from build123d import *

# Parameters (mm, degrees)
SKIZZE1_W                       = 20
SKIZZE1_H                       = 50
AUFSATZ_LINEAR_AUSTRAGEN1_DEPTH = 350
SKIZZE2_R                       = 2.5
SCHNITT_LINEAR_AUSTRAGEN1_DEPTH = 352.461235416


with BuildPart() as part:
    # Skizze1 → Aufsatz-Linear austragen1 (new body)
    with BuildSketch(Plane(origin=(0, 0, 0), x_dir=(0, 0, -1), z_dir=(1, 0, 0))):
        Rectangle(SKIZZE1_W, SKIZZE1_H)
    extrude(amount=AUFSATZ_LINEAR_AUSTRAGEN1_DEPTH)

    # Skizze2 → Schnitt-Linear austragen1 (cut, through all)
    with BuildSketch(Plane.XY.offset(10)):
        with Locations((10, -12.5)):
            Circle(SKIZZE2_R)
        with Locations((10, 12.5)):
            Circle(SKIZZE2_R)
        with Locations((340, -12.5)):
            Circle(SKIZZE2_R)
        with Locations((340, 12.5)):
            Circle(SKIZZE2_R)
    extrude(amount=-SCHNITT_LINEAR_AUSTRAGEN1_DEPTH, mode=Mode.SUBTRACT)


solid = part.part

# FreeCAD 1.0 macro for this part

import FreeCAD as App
import Part
import Sketcher
Q = App.Units.Quantity

doc = App.newDocument("Part")
params = doc.addObject("Spreadsheet::Sheet", "Params")
for row, (alias, value) in enumerate([
    ("sketch1_width", "50 mm"),
    ("sketch1_height", "20 mm"),
    ("pad1_length", "350 mm"),
    ("sketch2_diameter", "5 mm"),
], start=1):
    params.set(f"A{row}", alias)
    params.set(f"B{row}", "=" + value)
    params.setAlias(f"B{row}", alias)

body = doc.addObject("PartDesign::Body", "Body")

# Sketch on YZ plane
sketch1 = doc.addObject("Sketcher::SketchObject", "Sketch")
body.addObject(sketch1)
sketch1.AttachmentSupport = (doc.YZ_Plane, [""])
sketch1.MapMode = "FlatFace"
sketch1.addGeometry([
    Part.LineSegment(App.Vector(25, 10, 0), App.Vector(-25, 10, 0)),
    Part.LineSegment(App.Vector(-25, 10, 0), App.Vector(-25, -10, 0)),
    Part.LineSegment(App.Vector(-25, -10, 0), App.Vector(25, -10, 0)),
    Part.LineSegment(App.Vector(25, -10, 0), App.Vector(25, 10, 0)),
], False)
sketch1.addConstraint([
    Sketcher.Constraint("Coincident", 0, 2, 1, 1),
    Sketcher.Constraint("Coincident", 1, 2, 2, 1),
    Sketcher.Constraint("Coincident", 2, 2, 3, 1),
    Sketcher.Constraint("Coincident", 3, 2, 0, 1),
    Sketcher.Constraint("Horizontal", 0),
    Sketcher.Constraint("Vertical", 1),
    Sketcher.Constraint("Horizontal", 2),
    Sketcher.Constraint("Vertical", 3),
    Sketcher.Constraint("Symmetric", 0, 2, 2, 2, -1, 1),
    Sketcher.Constraint("DistanceX", 0, 2, 0, 1, Q("50 mm")),
    Sketcher.Constraint("DistanceY", 1, 2, 1, 1, Q("20 mm")),
])
sketch1.setExpression("Constraints[9]", "Params.sketch1_width")
sketch1.setExpression("Constraints[10]", "Params.sketch1_height")
pad1 = doc.addObject("PartDesign::Pad", "Pad")
body.addObject(pad1)
pad1.Profile = sketch1
pad1.setExpression("Length", "Params.pad1_length")

# Sketch on XY plane
sketch2 = doc.addObject("Sketcher::SketchObject", "Sketch001")
body.addObject(sketch2)
sketch2.AttachmentSupport = (doc.XY_Plane, [""])
sketch2.MapMode = "FlatFace"
sketch2.AttachmentOffset = App.Placement(App.Vector(0, 0, 10), App.Rotation())
sketch2.addGeometry([
    Part.Circle(App.Vector(10, -12.5, 0), App.Vector(0, 0, 1), 2.5),
    Part.Circle(App.Vector(10, 12.5, 0), App.Vector(0, 0, 1), 2.5),
    Part.Circle(App.Vector(340, -12.5, 0), App.Vector(0, 0, 1), 2.5),
    Part.Circle(App.Vector(340, 12.5, 0), App.Vector(0, 0, 1), 2.5),
], False)
sketch2.addConstraint([
    Sketcher.Constraint("Equal", 0, 1),
    Sketcher.Constraint("Equal", 1, 2),
    Sketcher.Constraint("Equal", 2, 3),
    Sketcher.Constraint("Symmetric", 0, 3, 1, 3, -1),
    Sketcher.Constraint("Symmetric", 2, 3, 3, 3, -1),
    Sketcher.Constraint("Horizontal", 0, 3, 2, 3),
    Sketcher.Constraint("Diameter", 0, Q("5 mm")),
    Sketcher.Constraint("DistanceX", -1, 1, 0, 3, Q("10 mm")),
    Sketcher.Constraint("DistanceX", -1, 1, 2, 3, Q("340 mm")),
    Sketcher.Constraint("DistanceY", 0, 3, 1, 3, Q("25 mm")),
])
sketch2.setExpression("Constraints[6]", "Params.sketch2_diameter")
pocket1 = doc.addObject("PartDesign::Pocket", "Pocket")
body.addObject(pocket1)
pocket1.Profile = sketch2
pocket1.Type = "ThroughAll"

doc.recompute()
